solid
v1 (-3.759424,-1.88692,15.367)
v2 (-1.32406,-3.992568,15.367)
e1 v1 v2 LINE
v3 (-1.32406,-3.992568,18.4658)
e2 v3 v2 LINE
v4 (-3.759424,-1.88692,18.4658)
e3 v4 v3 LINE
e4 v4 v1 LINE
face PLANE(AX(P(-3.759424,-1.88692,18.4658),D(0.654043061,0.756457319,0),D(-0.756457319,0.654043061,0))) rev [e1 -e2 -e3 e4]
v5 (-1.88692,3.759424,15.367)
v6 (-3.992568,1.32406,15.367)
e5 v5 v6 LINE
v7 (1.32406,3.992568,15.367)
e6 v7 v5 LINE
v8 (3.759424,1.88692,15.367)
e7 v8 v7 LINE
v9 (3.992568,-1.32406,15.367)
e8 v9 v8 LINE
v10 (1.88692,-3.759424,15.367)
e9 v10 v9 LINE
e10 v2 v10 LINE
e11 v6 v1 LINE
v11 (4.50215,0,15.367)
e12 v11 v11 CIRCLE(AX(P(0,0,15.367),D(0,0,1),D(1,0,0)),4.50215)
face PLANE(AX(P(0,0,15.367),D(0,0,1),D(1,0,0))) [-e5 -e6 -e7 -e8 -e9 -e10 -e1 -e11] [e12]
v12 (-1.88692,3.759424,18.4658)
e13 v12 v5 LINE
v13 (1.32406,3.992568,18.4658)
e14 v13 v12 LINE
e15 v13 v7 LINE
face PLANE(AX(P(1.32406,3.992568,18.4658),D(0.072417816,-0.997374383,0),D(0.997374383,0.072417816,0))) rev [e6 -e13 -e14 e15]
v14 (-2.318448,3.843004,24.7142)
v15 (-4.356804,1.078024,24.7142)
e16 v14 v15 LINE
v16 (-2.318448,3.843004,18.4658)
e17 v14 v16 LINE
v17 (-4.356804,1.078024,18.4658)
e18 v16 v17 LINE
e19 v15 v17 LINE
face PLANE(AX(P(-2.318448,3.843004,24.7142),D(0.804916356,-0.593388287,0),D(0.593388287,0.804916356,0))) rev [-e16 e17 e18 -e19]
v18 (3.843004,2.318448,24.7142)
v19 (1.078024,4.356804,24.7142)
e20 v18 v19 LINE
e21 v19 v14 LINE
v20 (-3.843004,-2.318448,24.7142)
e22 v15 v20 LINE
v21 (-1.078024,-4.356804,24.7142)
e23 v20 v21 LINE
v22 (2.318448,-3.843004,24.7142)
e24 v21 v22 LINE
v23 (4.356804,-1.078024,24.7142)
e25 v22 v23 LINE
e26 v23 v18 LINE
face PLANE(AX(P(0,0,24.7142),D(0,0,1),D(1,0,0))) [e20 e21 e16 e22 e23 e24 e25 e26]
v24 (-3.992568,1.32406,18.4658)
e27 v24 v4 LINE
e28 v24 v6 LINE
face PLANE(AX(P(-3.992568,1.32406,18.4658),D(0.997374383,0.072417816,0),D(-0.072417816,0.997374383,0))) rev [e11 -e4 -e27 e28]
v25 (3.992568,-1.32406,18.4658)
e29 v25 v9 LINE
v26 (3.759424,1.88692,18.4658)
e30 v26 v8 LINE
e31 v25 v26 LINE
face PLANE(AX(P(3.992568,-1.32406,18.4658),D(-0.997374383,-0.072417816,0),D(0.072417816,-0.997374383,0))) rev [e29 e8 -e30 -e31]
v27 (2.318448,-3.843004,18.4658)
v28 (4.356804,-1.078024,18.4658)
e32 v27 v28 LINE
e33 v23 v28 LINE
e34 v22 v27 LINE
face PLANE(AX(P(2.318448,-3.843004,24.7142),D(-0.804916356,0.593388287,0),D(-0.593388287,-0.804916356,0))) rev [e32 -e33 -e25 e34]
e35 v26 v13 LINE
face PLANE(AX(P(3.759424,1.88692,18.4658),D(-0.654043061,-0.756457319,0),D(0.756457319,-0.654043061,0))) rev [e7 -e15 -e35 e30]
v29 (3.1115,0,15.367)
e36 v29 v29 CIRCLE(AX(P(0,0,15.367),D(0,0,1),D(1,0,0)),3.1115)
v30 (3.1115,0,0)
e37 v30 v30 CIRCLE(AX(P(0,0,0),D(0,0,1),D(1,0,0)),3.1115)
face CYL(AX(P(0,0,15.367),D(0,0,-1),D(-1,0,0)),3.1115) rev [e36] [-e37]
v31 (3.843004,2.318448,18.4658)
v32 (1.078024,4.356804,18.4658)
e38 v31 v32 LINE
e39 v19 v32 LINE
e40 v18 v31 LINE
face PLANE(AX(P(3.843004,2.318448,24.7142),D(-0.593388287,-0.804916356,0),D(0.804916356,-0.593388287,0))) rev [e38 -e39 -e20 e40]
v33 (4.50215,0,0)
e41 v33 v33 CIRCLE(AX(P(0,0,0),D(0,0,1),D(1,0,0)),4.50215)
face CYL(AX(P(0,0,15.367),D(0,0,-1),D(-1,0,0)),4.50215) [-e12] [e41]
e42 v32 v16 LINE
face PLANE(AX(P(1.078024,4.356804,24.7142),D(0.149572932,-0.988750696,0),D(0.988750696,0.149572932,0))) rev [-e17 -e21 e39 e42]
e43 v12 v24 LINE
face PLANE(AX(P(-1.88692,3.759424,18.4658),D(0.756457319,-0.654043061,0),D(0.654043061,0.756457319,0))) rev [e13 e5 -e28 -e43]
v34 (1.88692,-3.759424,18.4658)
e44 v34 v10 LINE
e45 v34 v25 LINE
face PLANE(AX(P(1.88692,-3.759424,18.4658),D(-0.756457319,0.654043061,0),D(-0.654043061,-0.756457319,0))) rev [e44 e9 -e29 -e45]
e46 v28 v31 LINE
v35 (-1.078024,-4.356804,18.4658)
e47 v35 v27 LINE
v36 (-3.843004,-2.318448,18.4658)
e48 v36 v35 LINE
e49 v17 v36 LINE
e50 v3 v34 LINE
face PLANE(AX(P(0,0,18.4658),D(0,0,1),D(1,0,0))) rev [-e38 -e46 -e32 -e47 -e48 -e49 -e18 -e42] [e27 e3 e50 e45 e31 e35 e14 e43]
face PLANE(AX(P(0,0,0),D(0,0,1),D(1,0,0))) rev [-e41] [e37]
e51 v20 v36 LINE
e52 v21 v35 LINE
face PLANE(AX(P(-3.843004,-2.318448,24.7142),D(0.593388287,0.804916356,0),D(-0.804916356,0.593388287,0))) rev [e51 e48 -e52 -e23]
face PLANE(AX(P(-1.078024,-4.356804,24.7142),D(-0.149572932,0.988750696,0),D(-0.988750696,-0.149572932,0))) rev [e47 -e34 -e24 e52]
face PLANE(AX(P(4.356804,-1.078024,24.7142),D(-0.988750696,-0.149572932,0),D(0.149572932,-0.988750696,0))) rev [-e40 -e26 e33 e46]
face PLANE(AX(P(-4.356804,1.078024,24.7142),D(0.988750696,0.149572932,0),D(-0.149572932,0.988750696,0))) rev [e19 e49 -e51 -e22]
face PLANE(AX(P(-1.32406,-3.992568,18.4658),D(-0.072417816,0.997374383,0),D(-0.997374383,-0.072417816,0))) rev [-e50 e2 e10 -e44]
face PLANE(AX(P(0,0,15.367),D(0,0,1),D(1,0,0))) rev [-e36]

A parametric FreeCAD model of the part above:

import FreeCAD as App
import Part
import Sketcher
Q = App.Units.Quantity

doc = App.newDocument("Part")
body = doc.addObject("PartDesign::Body", "Body")

# Sketch on XY plane
sketch1 = doc.addObject("Sketcher::SketchObject", "Sketch")
body.addObject(sketch1)
sketch1.AttachmentSupport = (doc.XY_Plane, [""])
sketch1.MapMode = "FlatFace"
sketch1.addGeometry(Part.Circle(App.Vector(0, 0, 0), App.Vector(0, 0, 1), 4.5), False)
sketch1.addGeometry(Part.Circle(App.Vector(0, 0, 0), App.Vector(0, 0, 1), 3.1), False)
sketch1.addConstraint(Sketcher.Constraint("Coincident", 0, 3, -1, 1))
sketch1.addConstraint(Sketcher.Constraint("Coincident", 1, 3, -1, 1))
sketch1.addConstraint(Sketcher.Constraint("Diameter", 1, Q("0.245 in")))
sketch1.addConstraint(Sketcher.Constraint("Diameter", 0, Q("0.3545 in")))
pad1 = doc.addObject("PartDesign::Pad", "Pad")
body.addObject(pad1)
pad1.Profile = sketch1
pad1.Length = Q("0.605 in")

# Sketch on XY plane
sketch2 = doc.addObject("Sketcher::SketchObject", "Sketch001")
body.addObject(sketch2)
sketch2.AttachmentSupport = (doc.XY_Plane, [""])
sketch2.MapMode = "FlatFace"
sketch2.AttachmentOffset = App.Placement(App.Vector(0, 0, 0.605 * 25.4), App.Rotation())
sketch2.addGeometry(Part.LineSegment(App.Vector(3.8, 1.9, 0), App.Vector(1.3, 4, 0)), False)
sketch2.addGeometry(Part.LineSegment(App.Vector(1.3, 4, 0), App.Vector(-1.9, 3.8, 0)), False)
sketch2.addGeometry(Part.LineSegment(App.Vector(-1.9, 3.8, 0), App.Vector(-4, 1.3, 0)), False)
sketch2.addGeometry(Part.LineSegment(App.Vector(-4, 1.3, 0), App.Vector(-3.8, -1.9, 0)), False)
sketch2.addGeometry(Part.LineSegment(App.Vector(-3.8, -1.9, 0), App.Vector(-1.3, -4, 0)), False)
sketch2.addGeometry(Part.LineSegment(App.Vector(-1.3, -4, 0), App.Vector(1.9, -3.8, 0)), False)
sketch2.addGeometry(Part.LineSegment(App.Vector(1.9, -3.8, 0), App.Vector(4, -1.3, 0)), False)
sketch2.addGeometry(Part.LineSegment(App.Vector(4, -1.3, 0), App.Vector(3.8, 1.9, 0)), False)
sketch2.addConstraint(Sketcher.Constraint("Coincident", 0, 2, 1, 1))
sketch2.addConstraint(Sketcher.Constraint("Coincident", 1, 2, 2, 1))
sketch2.addConstraint(Sketcher.Constraint("Coincident", 2, 2, 3, 1))
sketch2.addConstraint(Sketcher.Constraint("Coincident", 3, 2, 4, 1))
sketch2.addConstraint(Sketcher.Constraint("Coincident", 4, 2, 5, 1))
sketch2.addConstraint(Sketcher.Constraint("Coincident", 5, 2, 6, 1))
sketch2.addConstraint(Sketcher.Constraint("Coincident", 6, 2, 7, 1))
sketch2.addConstraint(Sketcher.Constraint("Coincident", 7, 2, 0, 1))
sketch2.addConstraint(Sketcher.Constraint("Symmetric", 0, 2, 4, 2, -1, 1))
sketch2.addConstraint(Sketcher.Constraint("Symmetric", 1, 2, 5, 2, -1, 1))
sketch2.addConstraint(Sketcher.Constraint("Symmetric", 2, 2, 6, 2, -1, 1))
sketch2.addConstraint(Sketcher.Constraint("Symmetric", 3, 2, 7, 2, -1, 1))
sketch2.addConstraint(Sketcher.Constraint("Perpendicular", 0, 2))
sketch2.addConstraint(Sketcher.Constraint("Perpendicular", 1, 3))
sketch2.addConstraint(Sketcher.Constraint("Equal", 0, 1))
sketch2.addConstraint(Sketcher.Constraint("Equal", 1, 2))
sketch2.addConstraint(Sketcher.Constraint("Equal", 2, 3))
sketch2.addConstraint(Sketcher.Constraint("DistanceX", -1, 1, 0, 2, Q("1.32406 mm")))
sketch2.addConstraint(Sketcher.Constraint("DistanceY", -1, 1, 0, 2, Q("3.992568 mm")))
sketch2.addConstraint(Sketcher.Constraint("DistanceX", 1, 2, -1, 1, Q("1.88692 mm")))
pad2 = doc.addObject("PartDesign::Pad", "Pad001")
body.addObject(pad2)
pad2.Profile = sketch2
pad2.Length = Q("0.122 in")

# Sketch on XY plane
sketch3 = doc.addObject("Sketcher::SketchObject", "Sketch002")
body.addObject(sketch3)
sketch3.AttachmentSupport = (doc.XY_Plane, [""])
sketch3.MapMode = "FlatFace"
sketch3.AttachmentOffset = App.Placement(App.Vector(0, 0, 0.727 * 25.4), App.Rotation())
sketch3.addGeometry(Part.LineSegment(App.Vector(-2.3, 3.8, 0), App.Vector(-4.4, 1.1, 0)), False)
sketch3.addGeometry(Part.LineSegment(App.Vector(-4.4, 1.1, 0), App.Vector(-3.8, -2.3, 0)), False)
sketch3.addGeometry(Part.LineSegment(App.Vector(-3.8, -2.3, 0), App.Vector(-1.1, -4.4, 0)), False)
sketch3.addGeometry(Part.LineSegment(App.Vector(-1.1, -4.4, 0), App.Vector(2.3, -3.8, 0)), False)
sketch3.addGeometry(Part.LineSegment(App.Vector(2.3, -3.8, 0), App.Vector(4.4, -1.1, 0)), False)
sketch3.addGeometry(Part.LineSegment(App.Vector(4.4, -1.1, 0), App.Vector(3.8, 2.3, 0)), False)
sketch3.addGeometry(Part.LineSegment(App.Vector(3.8, 2.3, 0), App.Vector(1.1, 4.4, 0)), False)
sketch3.addGeometry(Part.LineSegment(App.Vector(1.1, 4.4, 0), App.Vector(-2.3, 3.8, 0)), False)
sketch3.addConstraint(Sketcher.Constraint("Coincident", 0, 2, 1, 1))
sketch3.addConstraint(Sketcher.Constraint("Coincident", 1, 2, 2, 1))
sketch3.addConstraint(Sketcher.Constraint("Coincident", 2, 2, 3, 1))
sketch3.addConstraint(Sketcher.Constraint("Coincident", 3, 2, 4, 1))
sketch3.addConstraint(Sketcher.Constraint("Coincident", 4, 2, 5, 1))
sketch3.addConstraint(Sketcher.Constraint("Coincident", 5, 2, 6, 1))
sketch3.addConstraint(Sketcher.Constraint("Coincident", 6, 2, 7, 1))
sketch3.addConstraint(Sketcher.Constraint("Coincident", 7, 2, 0, 1))
sketch3.addConstraint(Sketcher.Constraint("Symmetric", 0, 2, 4, 2, -1, 1))
sketch3.addConstraint(Sketcher.Constraint("Symmetric", 1, 2, 5, 2, -1, 1))
sketch3.addConstraint(Sketcher.Constraint("Symmetric", 2, 2, 6, 2, -1, 1))
sketch3.addConstraint(Sketcher.Constraint("Symmetric", 3, 2, 7, 2, -1, 1))
sketch3.addConstraint(Sketcher.Constraint("Perpendicular", 0, 2))
sketch3.addConstraint(Sketcher.Constraint("Perpendicular", 1, 3))
sketch3.addConstraint(Sketcher.Constraint("Equal", 0, 1))
sketch3.addConstraint(Sketcher.Constraint("Equal", 1, 2))
sketch3.addConstraint(Sketcher.Constraint("Equal", 2, 3))
sketch3.addConstraint(Sketcher.Constraint("DistanceX", 0, 2, 1, 2, Q("0.5138 mm")))
sketch3.addConstraint(Sketcher.Constraint("DistanceY", 1, 2, 0, 2, Q("3.396472 mm")))
sketch3.addConstraint(Sketcher.Constraint("DistanceX", 1, 2, 2, 2, Q("2.76498 mm")))
pad3 = doc.addObject("PartDesign::Pad", "Pad002")
body.addObject(pad3)
pad3.Profile = sketch3
pad3.Length = Q("0.246 in")

doc.recompute()
